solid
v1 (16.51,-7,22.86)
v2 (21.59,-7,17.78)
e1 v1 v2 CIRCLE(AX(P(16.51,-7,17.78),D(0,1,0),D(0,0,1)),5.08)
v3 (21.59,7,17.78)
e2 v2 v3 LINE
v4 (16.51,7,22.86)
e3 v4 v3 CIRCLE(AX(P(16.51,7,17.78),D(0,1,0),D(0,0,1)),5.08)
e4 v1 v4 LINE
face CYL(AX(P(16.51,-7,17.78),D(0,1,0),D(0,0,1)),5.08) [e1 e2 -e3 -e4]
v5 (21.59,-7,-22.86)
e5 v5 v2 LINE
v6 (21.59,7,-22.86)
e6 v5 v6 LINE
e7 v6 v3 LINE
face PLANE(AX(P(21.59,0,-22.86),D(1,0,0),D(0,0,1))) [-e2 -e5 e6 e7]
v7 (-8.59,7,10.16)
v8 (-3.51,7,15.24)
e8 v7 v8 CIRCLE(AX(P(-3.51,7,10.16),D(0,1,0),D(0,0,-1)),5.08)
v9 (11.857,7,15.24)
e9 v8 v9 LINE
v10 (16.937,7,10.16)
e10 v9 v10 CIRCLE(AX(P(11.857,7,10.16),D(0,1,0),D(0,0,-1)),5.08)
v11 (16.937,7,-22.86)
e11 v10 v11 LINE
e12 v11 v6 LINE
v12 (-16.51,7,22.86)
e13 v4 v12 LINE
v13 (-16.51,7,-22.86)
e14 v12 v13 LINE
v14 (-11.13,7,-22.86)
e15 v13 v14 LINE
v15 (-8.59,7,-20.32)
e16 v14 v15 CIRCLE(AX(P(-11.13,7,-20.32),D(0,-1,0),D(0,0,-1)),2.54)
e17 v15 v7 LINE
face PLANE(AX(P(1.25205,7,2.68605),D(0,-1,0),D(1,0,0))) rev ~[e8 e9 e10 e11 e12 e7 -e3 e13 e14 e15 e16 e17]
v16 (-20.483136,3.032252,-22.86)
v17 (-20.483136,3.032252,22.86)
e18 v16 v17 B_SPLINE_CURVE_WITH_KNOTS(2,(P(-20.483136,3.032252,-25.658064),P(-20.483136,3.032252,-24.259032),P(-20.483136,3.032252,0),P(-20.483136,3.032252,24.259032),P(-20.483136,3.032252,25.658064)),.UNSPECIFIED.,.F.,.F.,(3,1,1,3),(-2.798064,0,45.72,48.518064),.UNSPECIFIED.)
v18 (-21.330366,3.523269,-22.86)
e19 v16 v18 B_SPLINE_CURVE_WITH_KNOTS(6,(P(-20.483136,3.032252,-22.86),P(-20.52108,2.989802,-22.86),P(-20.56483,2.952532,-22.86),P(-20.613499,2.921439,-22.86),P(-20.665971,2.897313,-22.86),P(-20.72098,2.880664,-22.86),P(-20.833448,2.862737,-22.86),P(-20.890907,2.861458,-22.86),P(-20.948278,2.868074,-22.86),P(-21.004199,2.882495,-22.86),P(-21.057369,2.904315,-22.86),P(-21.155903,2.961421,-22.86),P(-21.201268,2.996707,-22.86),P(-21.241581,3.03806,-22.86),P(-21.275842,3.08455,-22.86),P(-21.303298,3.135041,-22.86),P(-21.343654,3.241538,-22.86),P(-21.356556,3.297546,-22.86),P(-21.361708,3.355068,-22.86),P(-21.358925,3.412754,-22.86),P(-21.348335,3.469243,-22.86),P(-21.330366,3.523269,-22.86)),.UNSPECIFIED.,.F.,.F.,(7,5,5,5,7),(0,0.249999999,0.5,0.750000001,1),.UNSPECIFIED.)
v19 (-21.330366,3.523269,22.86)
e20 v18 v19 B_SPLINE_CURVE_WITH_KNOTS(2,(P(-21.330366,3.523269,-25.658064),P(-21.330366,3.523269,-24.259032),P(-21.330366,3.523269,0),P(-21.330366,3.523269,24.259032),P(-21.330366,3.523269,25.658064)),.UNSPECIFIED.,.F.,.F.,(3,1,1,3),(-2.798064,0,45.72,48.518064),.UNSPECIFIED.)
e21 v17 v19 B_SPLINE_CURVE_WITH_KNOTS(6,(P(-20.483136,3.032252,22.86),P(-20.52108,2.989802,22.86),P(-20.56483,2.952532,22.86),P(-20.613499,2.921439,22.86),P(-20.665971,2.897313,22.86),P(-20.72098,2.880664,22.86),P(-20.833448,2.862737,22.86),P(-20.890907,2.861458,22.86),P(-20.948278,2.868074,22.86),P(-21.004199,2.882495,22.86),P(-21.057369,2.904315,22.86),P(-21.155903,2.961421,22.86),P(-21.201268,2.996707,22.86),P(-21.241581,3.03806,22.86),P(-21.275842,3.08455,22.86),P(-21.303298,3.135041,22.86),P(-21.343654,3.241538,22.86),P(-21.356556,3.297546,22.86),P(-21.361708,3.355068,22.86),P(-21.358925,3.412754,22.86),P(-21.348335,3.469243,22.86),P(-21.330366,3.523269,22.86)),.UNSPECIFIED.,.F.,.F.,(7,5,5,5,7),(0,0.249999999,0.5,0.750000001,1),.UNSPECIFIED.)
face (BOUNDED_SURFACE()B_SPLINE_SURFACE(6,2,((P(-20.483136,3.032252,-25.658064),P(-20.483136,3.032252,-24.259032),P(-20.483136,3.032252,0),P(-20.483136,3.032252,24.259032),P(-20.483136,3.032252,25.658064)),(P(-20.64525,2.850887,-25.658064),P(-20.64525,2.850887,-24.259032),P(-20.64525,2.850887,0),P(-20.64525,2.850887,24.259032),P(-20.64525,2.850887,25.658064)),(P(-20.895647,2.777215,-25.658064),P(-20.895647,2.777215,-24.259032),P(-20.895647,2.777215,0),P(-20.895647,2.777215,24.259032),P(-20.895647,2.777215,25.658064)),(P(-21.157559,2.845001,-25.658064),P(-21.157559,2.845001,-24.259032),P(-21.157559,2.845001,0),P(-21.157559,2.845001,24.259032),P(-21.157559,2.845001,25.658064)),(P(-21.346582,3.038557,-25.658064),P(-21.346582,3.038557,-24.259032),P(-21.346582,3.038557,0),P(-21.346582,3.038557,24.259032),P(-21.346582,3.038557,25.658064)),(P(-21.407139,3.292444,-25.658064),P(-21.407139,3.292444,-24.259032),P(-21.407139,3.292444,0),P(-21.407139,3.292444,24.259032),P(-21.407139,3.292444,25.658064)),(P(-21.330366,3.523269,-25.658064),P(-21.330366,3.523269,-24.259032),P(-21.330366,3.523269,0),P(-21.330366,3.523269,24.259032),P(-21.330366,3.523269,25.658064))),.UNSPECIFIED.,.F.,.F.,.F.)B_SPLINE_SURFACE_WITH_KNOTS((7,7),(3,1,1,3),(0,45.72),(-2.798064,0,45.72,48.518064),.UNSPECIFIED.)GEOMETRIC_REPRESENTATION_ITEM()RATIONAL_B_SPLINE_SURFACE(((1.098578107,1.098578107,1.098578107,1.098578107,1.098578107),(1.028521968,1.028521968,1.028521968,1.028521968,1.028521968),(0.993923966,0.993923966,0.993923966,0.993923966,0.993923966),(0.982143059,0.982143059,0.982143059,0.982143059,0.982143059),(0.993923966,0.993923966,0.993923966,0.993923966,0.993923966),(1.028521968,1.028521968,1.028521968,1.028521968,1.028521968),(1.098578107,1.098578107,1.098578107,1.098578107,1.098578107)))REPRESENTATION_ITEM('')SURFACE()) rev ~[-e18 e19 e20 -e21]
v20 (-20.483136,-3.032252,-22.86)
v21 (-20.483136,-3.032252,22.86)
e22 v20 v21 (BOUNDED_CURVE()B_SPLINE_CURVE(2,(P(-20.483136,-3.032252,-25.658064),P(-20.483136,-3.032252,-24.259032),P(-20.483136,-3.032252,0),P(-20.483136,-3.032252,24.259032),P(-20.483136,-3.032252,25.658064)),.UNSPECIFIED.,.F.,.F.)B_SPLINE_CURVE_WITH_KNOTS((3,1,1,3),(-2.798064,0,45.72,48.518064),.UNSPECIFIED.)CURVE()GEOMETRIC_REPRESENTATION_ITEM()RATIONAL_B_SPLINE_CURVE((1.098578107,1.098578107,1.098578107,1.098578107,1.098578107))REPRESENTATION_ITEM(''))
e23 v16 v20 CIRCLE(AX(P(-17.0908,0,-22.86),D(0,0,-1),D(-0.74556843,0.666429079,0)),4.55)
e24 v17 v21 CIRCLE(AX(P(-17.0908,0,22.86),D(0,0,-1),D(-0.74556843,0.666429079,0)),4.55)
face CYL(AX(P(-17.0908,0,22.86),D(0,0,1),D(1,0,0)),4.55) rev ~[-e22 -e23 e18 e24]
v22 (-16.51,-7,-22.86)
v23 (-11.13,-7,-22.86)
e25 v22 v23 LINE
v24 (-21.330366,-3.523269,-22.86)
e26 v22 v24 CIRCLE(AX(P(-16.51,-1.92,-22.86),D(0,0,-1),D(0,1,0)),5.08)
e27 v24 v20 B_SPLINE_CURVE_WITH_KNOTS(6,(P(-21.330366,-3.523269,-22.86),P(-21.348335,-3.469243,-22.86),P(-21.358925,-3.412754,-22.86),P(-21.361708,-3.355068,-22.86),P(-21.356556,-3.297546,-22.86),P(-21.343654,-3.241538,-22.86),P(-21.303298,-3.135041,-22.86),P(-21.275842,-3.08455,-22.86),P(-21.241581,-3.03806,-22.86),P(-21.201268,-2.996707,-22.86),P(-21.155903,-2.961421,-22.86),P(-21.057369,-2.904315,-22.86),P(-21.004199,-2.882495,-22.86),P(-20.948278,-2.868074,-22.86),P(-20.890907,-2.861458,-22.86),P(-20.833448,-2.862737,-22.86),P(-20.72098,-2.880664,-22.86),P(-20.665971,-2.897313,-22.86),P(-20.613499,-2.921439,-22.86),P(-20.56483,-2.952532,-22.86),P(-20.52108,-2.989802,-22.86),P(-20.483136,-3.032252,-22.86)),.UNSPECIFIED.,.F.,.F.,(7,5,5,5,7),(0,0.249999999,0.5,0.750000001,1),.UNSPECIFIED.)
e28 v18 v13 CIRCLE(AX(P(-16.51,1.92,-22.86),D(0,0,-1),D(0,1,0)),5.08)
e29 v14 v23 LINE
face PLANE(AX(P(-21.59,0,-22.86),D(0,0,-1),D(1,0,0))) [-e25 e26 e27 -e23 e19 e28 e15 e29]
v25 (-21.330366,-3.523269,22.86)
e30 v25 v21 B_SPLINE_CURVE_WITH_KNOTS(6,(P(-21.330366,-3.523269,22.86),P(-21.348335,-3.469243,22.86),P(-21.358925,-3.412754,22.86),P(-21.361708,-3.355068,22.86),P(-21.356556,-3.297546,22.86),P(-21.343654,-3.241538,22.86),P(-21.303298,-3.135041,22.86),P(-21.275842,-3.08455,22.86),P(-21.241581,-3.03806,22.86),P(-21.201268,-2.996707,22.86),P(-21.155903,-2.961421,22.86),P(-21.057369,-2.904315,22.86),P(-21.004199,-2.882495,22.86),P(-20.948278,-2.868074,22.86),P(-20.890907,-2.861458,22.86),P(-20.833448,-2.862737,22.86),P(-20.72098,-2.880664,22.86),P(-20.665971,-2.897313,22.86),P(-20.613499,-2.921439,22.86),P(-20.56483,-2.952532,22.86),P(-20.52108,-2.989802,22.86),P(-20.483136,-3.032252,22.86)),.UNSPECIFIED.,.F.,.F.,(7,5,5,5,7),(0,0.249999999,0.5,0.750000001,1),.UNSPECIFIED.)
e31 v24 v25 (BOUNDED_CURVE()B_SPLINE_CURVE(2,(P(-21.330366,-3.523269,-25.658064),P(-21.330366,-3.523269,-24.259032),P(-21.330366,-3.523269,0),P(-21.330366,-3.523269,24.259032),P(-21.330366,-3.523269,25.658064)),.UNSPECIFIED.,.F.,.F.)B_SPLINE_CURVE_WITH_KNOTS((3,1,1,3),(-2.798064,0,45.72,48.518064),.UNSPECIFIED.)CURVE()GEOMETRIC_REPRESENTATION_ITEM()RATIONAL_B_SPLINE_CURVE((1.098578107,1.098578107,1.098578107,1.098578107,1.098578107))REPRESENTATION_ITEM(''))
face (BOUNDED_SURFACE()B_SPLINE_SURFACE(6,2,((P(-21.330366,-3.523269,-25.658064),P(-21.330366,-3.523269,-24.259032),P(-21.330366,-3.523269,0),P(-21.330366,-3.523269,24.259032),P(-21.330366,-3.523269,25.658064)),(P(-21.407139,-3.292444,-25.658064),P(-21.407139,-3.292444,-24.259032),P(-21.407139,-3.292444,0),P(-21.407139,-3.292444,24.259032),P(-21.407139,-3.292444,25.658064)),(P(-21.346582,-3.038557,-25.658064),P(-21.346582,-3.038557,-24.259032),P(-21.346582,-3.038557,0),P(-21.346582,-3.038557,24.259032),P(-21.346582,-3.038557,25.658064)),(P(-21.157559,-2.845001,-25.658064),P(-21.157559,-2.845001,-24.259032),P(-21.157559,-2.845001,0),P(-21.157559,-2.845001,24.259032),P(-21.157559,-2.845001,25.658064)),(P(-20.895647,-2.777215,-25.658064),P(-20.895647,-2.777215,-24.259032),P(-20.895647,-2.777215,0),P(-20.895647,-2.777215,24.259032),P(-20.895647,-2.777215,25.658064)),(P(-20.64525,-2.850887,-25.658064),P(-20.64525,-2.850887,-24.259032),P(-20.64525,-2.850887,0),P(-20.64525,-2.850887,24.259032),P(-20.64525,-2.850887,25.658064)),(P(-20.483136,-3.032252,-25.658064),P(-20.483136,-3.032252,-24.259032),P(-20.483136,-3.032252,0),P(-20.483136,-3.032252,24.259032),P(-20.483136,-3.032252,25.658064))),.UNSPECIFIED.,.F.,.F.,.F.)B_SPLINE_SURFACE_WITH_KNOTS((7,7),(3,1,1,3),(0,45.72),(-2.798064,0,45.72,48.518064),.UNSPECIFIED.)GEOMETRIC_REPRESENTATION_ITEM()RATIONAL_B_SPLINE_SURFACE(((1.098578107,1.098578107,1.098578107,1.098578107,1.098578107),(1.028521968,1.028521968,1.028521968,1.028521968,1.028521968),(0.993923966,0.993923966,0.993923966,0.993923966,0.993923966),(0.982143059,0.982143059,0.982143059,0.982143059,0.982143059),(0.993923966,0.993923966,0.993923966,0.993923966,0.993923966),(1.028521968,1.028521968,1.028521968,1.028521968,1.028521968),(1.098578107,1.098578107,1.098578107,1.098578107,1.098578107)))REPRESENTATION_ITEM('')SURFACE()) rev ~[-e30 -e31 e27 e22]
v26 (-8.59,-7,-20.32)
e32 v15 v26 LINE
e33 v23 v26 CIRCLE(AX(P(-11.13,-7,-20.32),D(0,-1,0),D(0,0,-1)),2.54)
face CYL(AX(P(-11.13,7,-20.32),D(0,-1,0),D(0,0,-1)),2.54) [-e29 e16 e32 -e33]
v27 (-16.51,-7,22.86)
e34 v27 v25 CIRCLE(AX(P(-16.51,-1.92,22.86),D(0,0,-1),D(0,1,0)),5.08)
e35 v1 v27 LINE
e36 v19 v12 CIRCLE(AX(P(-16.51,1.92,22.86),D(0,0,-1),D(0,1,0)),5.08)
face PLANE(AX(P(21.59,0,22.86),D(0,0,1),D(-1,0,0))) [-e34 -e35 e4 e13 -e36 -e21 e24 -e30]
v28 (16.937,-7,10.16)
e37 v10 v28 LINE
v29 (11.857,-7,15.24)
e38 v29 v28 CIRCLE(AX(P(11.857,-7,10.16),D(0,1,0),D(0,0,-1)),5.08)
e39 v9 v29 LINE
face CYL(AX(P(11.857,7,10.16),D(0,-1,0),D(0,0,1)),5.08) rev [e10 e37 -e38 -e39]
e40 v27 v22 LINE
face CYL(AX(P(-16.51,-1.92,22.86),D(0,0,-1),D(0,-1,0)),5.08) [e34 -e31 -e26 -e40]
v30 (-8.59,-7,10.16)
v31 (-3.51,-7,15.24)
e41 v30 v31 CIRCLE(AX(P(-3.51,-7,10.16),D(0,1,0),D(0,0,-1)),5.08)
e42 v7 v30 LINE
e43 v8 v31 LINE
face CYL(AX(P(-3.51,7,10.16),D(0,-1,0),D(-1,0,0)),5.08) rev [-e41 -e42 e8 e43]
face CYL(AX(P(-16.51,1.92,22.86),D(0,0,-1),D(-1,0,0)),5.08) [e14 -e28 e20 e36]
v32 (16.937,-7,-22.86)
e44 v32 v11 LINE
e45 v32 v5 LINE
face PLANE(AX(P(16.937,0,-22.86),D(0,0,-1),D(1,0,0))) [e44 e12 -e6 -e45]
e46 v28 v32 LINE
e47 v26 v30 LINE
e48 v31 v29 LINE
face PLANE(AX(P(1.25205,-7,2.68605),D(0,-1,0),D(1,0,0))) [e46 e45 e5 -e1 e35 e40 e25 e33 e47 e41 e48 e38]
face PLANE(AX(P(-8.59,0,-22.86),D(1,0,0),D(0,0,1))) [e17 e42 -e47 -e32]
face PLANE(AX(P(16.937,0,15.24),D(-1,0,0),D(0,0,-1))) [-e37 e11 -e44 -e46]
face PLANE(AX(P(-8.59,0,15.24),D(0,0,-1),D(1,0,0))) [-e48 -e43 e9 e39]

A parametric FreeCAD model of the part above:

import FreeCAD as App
import Part
import Sketcher

V = App.Vector
Q = App.Units.Quantity


def edges_at(feature, points):
    """Names of the edges that pass closest to the given points."""
    edges = feature.Shape.Edges
    near = lambda p: min(range(len(edges)), key=lambda i: edges[i].distToShape(Part.Vertex(*p))[0])
    return sorted({f"Edge{near(p) + 1}" for p in points})

doc = App.newDocument("Part")
params = doc.addObject("Spreadsheet::Sheet", "Params")
for row, (alias, value) in enumerate([
    ("sketch1_width", "1.7 in"),
    ("sketch1_height", "1.8 in"),
    ("sketch1_height2", "1.5 in"),
    ("sketch1_width2", "1.005 in"),
    ("pad1_length", "14 mm"),
    ("fillet_radius", "0.2 in"),
    ("fillet2_radius", "0.5 mm"),
    ("fillet3_radius", "0.2 in"),
    ("fillet4_radius", "0.1 in"),
], start=1):
    params.set(f"A{row}", alias)
    params.set(f"B{row}", "=" + value)
    params.setAlias(f"B{row}", alias)

body = doc.addObject("PartDesign::Body", "Body")

# Sketch on XZ plane
sketch1 = doc.addObject("Sketcher::SketchObject", "Sketch")
body.addObject(sketch1)
sketch1.AttachmentSupport = (doc.XZ_Plane, [""])
sketch1.MapMode = "FlatFace"
sketch1.addGeometry(Part.LineSegment(V(21.6, 22.9, 0), V(-21.6, 22.9, 0)), False)
sketch1.addGeometry(Part.LineSegment(V(-21.6, 22.9, 0), V(-21.6, -22.9, 0)), False)
sketch1.addGeometry(Part.LineSegment(V(-21.6, -22.9, 0), V(-8.6, -22.9, 0)), False)
sketch1.addGeometry(Part.LineSegment(V(-8.6, -22.9, 0), V(-8.6, 15.2, 0)), False)
sketch1.addGeometry(Part.LineSegment(V(-8.6, 15.2, 0), V(16.9, 15.2, 0)), False)
sketch1.addGeometry(Part.LineSegment(V(16.9, 15.2, 0), V(16.9, -22.9, 0)), False)
sketch1.addGeometry(Part.LineSegment(V(16.9, -22.9, 0), V(21.6, -22.9, 0)), False)
sketch1.addGeometry(Part.LineSegment(V(21.6, -22.9, 0), V(21.6, 22.9, 0)), False)
sketch1.addConstraint(Sketcher.Constraint("Coincident", 0, 2, 1, 1))
sketch1.addConstraint(Sketcher.Constraint("Coincident", 1, 2, 2, 1))
sketch1.addConstraint(Sketcher.Constraint("Coincident", 2, 2, 3, 1))
sketch1.addConstraint(Sketcher.Constraint("Coincident", 3, 2, 4, 1))
sketch1.addConstraint(Sketcher.Constraint("Coincident", 4, 2, 5, 1))
sketch1.addConstraint(Sketcher.Constraint("Coincident", 5, 2, 6, 1))
sketch1.addConstraint(Sketcher.Constraint("Coincident", 6, 2, 7, 1))
sketch1.addConstraint(Sketcher.Constraint("Coincident", 7, 2, 0, 1))
sketch1.addConstraint(Sketcher.Constraint("Horizontal", 0))
sketch1.addConstraint(Sketcher.Constraint("Vertical", 1))
sketch1.addConstraint(Sketcher.Constraint("Horizontal", 2))
sketch1.addConstraint(Sketcher.Constraint("Vertical", 3))
sketch1.addConstraint(Sketcher.Constraint("Horizontal", 4))
sketch1.addConstraint(Sketcher.Constraint("Vertical", 5))
sketch1.addConstraint(Sketcher.Constraint("Horizontal", 6))
sketch1.addConstraint(Sketcher.Constraint("Vertical", 7))
sketch1.addConstraint(Sketcher.Constraint("Symmetric", 0, 2, 6, 2, -1, 1))
sketch1.addConstraint(Sketcher.Constraint("Horizontal", 2, 2, 5, 2))
sketch1.addConstraint(Sketcher.Constraint("DistanceX", 0, 2, 0, 1, Q("1.7 in")))
sketch1.addConstraint(Sketcher.Constraint("DistanceY", 1, 2, 1, 1, Q("1.8 in")))
sketch1.addConstraint(Sketcher.Constraint("DistanceY", 3, 1, 3, 2, Q("1.5 in")))
sketch1.addConstraint(Sketcher.Constraint("DistanceX", 4, 1, 4, 2, Q("1.005 in")))
sketch1.addConstraint(Sketcher.Constraint("DistanceX", 2, 1, 2, 2, Q("13 mm")))
sketch1.setExpression("Constraints[18]", "Params.sketch1_width")
sketch1.setExpression("Constraints[19]", "Params.sketch1_height")
sketch1.setExpression("Constraints[20]", "Params.sketch1_height2")
sketch1.setExpression("Constraints[21]", "Params.sketch1_width2")
pad1 = doc.addObject("PartDesign::Pad", "Pad")
body.addObject(pad1)
pad1.Profile = sketch1
pad1.setExpression("Length", "Params.pad1_length")
pad1.Midplane = True

# Sketch on XY plane
sketch2 = doc.addObject("Sketcher::SketchObject", "Sketch001")
body.addObject(sketch2)
sketch2.AttachmentSupport = (doc.XY_Plane, [""])
sketch2.MapMode = "FlatFace"
sketch2.AttachmentOffset = App.Placement(V(0, 0, 0.9 * 25.4), App.Rotation())
sketch2.addGeometry(Part.Circle(V(-17.1, 0, 0), V(0, 0, 1), 4.5), False)
sketch2.addConstraint(Sketcher.Constraint("PointOnObject", 0, 3, -1))
sketch2.addConstraint(Sketcher.Constraint("Diameter", 0, Q("9.1 mm")))
sketch2.addConstraint(Sketcher.Constraint("DistanceX", 0, 3, -1, 1, Q("17.0908 mm")))
pocket1 = doc.addObject("PartDesign::Pocket", "Pocket")
body.addObject(pocket1)
pocket1.Profile = sketch2
pocket1.Type = "ThroughAll"
doc.recompute()

fillet = doc.addObject("PartDesign::Fillet", "Fillet")
body.addObject(fillet)
fillet.Base = (pocket1, edges_at(pocket1, [
    (-8.59, 0, 15.24),
    (16.937, 0, 15.24),
    (-21.59, -7, 0),
    (-21.59, 7, 0),
]))
fillet.setExpression("Radius", "Params.fillet_radius")
doc.recompute()

fillet2 = doc.addObject("PartDesign::Fillet", "Fillet001")
body.addObject(fillet2)
fillet2.Base = (fillet, edges_at(fillet, [(-21.59, -0.678, 0), (-21.59, 0.678, 0)]))
fillet2.setExpression("Radius", "Params.fillet2_radius")
doc.recompute()

fillet3 = doc.addObject("PartDesign::Fillet", "Fillet002")
body.addObject(fillet3)
fillet3.Base = (fillet2, edges_at(fillet2, [(21.59, 0, 22.86)]))
fillet3.setExpression("Radius", "Params.fillet3_radius")
doc.recompute()

fillet4 = doc.addObject("PartDesign::Fillet", "Fillet003")
body.addObject(fillet4)
fillet4.Base = (fillet3, edges_at(fillet3, [(-8.59, 0, -22.86)]))
fillet4.setExpression("Radius", "Params.fillet4_radius")

doc.recompute()
